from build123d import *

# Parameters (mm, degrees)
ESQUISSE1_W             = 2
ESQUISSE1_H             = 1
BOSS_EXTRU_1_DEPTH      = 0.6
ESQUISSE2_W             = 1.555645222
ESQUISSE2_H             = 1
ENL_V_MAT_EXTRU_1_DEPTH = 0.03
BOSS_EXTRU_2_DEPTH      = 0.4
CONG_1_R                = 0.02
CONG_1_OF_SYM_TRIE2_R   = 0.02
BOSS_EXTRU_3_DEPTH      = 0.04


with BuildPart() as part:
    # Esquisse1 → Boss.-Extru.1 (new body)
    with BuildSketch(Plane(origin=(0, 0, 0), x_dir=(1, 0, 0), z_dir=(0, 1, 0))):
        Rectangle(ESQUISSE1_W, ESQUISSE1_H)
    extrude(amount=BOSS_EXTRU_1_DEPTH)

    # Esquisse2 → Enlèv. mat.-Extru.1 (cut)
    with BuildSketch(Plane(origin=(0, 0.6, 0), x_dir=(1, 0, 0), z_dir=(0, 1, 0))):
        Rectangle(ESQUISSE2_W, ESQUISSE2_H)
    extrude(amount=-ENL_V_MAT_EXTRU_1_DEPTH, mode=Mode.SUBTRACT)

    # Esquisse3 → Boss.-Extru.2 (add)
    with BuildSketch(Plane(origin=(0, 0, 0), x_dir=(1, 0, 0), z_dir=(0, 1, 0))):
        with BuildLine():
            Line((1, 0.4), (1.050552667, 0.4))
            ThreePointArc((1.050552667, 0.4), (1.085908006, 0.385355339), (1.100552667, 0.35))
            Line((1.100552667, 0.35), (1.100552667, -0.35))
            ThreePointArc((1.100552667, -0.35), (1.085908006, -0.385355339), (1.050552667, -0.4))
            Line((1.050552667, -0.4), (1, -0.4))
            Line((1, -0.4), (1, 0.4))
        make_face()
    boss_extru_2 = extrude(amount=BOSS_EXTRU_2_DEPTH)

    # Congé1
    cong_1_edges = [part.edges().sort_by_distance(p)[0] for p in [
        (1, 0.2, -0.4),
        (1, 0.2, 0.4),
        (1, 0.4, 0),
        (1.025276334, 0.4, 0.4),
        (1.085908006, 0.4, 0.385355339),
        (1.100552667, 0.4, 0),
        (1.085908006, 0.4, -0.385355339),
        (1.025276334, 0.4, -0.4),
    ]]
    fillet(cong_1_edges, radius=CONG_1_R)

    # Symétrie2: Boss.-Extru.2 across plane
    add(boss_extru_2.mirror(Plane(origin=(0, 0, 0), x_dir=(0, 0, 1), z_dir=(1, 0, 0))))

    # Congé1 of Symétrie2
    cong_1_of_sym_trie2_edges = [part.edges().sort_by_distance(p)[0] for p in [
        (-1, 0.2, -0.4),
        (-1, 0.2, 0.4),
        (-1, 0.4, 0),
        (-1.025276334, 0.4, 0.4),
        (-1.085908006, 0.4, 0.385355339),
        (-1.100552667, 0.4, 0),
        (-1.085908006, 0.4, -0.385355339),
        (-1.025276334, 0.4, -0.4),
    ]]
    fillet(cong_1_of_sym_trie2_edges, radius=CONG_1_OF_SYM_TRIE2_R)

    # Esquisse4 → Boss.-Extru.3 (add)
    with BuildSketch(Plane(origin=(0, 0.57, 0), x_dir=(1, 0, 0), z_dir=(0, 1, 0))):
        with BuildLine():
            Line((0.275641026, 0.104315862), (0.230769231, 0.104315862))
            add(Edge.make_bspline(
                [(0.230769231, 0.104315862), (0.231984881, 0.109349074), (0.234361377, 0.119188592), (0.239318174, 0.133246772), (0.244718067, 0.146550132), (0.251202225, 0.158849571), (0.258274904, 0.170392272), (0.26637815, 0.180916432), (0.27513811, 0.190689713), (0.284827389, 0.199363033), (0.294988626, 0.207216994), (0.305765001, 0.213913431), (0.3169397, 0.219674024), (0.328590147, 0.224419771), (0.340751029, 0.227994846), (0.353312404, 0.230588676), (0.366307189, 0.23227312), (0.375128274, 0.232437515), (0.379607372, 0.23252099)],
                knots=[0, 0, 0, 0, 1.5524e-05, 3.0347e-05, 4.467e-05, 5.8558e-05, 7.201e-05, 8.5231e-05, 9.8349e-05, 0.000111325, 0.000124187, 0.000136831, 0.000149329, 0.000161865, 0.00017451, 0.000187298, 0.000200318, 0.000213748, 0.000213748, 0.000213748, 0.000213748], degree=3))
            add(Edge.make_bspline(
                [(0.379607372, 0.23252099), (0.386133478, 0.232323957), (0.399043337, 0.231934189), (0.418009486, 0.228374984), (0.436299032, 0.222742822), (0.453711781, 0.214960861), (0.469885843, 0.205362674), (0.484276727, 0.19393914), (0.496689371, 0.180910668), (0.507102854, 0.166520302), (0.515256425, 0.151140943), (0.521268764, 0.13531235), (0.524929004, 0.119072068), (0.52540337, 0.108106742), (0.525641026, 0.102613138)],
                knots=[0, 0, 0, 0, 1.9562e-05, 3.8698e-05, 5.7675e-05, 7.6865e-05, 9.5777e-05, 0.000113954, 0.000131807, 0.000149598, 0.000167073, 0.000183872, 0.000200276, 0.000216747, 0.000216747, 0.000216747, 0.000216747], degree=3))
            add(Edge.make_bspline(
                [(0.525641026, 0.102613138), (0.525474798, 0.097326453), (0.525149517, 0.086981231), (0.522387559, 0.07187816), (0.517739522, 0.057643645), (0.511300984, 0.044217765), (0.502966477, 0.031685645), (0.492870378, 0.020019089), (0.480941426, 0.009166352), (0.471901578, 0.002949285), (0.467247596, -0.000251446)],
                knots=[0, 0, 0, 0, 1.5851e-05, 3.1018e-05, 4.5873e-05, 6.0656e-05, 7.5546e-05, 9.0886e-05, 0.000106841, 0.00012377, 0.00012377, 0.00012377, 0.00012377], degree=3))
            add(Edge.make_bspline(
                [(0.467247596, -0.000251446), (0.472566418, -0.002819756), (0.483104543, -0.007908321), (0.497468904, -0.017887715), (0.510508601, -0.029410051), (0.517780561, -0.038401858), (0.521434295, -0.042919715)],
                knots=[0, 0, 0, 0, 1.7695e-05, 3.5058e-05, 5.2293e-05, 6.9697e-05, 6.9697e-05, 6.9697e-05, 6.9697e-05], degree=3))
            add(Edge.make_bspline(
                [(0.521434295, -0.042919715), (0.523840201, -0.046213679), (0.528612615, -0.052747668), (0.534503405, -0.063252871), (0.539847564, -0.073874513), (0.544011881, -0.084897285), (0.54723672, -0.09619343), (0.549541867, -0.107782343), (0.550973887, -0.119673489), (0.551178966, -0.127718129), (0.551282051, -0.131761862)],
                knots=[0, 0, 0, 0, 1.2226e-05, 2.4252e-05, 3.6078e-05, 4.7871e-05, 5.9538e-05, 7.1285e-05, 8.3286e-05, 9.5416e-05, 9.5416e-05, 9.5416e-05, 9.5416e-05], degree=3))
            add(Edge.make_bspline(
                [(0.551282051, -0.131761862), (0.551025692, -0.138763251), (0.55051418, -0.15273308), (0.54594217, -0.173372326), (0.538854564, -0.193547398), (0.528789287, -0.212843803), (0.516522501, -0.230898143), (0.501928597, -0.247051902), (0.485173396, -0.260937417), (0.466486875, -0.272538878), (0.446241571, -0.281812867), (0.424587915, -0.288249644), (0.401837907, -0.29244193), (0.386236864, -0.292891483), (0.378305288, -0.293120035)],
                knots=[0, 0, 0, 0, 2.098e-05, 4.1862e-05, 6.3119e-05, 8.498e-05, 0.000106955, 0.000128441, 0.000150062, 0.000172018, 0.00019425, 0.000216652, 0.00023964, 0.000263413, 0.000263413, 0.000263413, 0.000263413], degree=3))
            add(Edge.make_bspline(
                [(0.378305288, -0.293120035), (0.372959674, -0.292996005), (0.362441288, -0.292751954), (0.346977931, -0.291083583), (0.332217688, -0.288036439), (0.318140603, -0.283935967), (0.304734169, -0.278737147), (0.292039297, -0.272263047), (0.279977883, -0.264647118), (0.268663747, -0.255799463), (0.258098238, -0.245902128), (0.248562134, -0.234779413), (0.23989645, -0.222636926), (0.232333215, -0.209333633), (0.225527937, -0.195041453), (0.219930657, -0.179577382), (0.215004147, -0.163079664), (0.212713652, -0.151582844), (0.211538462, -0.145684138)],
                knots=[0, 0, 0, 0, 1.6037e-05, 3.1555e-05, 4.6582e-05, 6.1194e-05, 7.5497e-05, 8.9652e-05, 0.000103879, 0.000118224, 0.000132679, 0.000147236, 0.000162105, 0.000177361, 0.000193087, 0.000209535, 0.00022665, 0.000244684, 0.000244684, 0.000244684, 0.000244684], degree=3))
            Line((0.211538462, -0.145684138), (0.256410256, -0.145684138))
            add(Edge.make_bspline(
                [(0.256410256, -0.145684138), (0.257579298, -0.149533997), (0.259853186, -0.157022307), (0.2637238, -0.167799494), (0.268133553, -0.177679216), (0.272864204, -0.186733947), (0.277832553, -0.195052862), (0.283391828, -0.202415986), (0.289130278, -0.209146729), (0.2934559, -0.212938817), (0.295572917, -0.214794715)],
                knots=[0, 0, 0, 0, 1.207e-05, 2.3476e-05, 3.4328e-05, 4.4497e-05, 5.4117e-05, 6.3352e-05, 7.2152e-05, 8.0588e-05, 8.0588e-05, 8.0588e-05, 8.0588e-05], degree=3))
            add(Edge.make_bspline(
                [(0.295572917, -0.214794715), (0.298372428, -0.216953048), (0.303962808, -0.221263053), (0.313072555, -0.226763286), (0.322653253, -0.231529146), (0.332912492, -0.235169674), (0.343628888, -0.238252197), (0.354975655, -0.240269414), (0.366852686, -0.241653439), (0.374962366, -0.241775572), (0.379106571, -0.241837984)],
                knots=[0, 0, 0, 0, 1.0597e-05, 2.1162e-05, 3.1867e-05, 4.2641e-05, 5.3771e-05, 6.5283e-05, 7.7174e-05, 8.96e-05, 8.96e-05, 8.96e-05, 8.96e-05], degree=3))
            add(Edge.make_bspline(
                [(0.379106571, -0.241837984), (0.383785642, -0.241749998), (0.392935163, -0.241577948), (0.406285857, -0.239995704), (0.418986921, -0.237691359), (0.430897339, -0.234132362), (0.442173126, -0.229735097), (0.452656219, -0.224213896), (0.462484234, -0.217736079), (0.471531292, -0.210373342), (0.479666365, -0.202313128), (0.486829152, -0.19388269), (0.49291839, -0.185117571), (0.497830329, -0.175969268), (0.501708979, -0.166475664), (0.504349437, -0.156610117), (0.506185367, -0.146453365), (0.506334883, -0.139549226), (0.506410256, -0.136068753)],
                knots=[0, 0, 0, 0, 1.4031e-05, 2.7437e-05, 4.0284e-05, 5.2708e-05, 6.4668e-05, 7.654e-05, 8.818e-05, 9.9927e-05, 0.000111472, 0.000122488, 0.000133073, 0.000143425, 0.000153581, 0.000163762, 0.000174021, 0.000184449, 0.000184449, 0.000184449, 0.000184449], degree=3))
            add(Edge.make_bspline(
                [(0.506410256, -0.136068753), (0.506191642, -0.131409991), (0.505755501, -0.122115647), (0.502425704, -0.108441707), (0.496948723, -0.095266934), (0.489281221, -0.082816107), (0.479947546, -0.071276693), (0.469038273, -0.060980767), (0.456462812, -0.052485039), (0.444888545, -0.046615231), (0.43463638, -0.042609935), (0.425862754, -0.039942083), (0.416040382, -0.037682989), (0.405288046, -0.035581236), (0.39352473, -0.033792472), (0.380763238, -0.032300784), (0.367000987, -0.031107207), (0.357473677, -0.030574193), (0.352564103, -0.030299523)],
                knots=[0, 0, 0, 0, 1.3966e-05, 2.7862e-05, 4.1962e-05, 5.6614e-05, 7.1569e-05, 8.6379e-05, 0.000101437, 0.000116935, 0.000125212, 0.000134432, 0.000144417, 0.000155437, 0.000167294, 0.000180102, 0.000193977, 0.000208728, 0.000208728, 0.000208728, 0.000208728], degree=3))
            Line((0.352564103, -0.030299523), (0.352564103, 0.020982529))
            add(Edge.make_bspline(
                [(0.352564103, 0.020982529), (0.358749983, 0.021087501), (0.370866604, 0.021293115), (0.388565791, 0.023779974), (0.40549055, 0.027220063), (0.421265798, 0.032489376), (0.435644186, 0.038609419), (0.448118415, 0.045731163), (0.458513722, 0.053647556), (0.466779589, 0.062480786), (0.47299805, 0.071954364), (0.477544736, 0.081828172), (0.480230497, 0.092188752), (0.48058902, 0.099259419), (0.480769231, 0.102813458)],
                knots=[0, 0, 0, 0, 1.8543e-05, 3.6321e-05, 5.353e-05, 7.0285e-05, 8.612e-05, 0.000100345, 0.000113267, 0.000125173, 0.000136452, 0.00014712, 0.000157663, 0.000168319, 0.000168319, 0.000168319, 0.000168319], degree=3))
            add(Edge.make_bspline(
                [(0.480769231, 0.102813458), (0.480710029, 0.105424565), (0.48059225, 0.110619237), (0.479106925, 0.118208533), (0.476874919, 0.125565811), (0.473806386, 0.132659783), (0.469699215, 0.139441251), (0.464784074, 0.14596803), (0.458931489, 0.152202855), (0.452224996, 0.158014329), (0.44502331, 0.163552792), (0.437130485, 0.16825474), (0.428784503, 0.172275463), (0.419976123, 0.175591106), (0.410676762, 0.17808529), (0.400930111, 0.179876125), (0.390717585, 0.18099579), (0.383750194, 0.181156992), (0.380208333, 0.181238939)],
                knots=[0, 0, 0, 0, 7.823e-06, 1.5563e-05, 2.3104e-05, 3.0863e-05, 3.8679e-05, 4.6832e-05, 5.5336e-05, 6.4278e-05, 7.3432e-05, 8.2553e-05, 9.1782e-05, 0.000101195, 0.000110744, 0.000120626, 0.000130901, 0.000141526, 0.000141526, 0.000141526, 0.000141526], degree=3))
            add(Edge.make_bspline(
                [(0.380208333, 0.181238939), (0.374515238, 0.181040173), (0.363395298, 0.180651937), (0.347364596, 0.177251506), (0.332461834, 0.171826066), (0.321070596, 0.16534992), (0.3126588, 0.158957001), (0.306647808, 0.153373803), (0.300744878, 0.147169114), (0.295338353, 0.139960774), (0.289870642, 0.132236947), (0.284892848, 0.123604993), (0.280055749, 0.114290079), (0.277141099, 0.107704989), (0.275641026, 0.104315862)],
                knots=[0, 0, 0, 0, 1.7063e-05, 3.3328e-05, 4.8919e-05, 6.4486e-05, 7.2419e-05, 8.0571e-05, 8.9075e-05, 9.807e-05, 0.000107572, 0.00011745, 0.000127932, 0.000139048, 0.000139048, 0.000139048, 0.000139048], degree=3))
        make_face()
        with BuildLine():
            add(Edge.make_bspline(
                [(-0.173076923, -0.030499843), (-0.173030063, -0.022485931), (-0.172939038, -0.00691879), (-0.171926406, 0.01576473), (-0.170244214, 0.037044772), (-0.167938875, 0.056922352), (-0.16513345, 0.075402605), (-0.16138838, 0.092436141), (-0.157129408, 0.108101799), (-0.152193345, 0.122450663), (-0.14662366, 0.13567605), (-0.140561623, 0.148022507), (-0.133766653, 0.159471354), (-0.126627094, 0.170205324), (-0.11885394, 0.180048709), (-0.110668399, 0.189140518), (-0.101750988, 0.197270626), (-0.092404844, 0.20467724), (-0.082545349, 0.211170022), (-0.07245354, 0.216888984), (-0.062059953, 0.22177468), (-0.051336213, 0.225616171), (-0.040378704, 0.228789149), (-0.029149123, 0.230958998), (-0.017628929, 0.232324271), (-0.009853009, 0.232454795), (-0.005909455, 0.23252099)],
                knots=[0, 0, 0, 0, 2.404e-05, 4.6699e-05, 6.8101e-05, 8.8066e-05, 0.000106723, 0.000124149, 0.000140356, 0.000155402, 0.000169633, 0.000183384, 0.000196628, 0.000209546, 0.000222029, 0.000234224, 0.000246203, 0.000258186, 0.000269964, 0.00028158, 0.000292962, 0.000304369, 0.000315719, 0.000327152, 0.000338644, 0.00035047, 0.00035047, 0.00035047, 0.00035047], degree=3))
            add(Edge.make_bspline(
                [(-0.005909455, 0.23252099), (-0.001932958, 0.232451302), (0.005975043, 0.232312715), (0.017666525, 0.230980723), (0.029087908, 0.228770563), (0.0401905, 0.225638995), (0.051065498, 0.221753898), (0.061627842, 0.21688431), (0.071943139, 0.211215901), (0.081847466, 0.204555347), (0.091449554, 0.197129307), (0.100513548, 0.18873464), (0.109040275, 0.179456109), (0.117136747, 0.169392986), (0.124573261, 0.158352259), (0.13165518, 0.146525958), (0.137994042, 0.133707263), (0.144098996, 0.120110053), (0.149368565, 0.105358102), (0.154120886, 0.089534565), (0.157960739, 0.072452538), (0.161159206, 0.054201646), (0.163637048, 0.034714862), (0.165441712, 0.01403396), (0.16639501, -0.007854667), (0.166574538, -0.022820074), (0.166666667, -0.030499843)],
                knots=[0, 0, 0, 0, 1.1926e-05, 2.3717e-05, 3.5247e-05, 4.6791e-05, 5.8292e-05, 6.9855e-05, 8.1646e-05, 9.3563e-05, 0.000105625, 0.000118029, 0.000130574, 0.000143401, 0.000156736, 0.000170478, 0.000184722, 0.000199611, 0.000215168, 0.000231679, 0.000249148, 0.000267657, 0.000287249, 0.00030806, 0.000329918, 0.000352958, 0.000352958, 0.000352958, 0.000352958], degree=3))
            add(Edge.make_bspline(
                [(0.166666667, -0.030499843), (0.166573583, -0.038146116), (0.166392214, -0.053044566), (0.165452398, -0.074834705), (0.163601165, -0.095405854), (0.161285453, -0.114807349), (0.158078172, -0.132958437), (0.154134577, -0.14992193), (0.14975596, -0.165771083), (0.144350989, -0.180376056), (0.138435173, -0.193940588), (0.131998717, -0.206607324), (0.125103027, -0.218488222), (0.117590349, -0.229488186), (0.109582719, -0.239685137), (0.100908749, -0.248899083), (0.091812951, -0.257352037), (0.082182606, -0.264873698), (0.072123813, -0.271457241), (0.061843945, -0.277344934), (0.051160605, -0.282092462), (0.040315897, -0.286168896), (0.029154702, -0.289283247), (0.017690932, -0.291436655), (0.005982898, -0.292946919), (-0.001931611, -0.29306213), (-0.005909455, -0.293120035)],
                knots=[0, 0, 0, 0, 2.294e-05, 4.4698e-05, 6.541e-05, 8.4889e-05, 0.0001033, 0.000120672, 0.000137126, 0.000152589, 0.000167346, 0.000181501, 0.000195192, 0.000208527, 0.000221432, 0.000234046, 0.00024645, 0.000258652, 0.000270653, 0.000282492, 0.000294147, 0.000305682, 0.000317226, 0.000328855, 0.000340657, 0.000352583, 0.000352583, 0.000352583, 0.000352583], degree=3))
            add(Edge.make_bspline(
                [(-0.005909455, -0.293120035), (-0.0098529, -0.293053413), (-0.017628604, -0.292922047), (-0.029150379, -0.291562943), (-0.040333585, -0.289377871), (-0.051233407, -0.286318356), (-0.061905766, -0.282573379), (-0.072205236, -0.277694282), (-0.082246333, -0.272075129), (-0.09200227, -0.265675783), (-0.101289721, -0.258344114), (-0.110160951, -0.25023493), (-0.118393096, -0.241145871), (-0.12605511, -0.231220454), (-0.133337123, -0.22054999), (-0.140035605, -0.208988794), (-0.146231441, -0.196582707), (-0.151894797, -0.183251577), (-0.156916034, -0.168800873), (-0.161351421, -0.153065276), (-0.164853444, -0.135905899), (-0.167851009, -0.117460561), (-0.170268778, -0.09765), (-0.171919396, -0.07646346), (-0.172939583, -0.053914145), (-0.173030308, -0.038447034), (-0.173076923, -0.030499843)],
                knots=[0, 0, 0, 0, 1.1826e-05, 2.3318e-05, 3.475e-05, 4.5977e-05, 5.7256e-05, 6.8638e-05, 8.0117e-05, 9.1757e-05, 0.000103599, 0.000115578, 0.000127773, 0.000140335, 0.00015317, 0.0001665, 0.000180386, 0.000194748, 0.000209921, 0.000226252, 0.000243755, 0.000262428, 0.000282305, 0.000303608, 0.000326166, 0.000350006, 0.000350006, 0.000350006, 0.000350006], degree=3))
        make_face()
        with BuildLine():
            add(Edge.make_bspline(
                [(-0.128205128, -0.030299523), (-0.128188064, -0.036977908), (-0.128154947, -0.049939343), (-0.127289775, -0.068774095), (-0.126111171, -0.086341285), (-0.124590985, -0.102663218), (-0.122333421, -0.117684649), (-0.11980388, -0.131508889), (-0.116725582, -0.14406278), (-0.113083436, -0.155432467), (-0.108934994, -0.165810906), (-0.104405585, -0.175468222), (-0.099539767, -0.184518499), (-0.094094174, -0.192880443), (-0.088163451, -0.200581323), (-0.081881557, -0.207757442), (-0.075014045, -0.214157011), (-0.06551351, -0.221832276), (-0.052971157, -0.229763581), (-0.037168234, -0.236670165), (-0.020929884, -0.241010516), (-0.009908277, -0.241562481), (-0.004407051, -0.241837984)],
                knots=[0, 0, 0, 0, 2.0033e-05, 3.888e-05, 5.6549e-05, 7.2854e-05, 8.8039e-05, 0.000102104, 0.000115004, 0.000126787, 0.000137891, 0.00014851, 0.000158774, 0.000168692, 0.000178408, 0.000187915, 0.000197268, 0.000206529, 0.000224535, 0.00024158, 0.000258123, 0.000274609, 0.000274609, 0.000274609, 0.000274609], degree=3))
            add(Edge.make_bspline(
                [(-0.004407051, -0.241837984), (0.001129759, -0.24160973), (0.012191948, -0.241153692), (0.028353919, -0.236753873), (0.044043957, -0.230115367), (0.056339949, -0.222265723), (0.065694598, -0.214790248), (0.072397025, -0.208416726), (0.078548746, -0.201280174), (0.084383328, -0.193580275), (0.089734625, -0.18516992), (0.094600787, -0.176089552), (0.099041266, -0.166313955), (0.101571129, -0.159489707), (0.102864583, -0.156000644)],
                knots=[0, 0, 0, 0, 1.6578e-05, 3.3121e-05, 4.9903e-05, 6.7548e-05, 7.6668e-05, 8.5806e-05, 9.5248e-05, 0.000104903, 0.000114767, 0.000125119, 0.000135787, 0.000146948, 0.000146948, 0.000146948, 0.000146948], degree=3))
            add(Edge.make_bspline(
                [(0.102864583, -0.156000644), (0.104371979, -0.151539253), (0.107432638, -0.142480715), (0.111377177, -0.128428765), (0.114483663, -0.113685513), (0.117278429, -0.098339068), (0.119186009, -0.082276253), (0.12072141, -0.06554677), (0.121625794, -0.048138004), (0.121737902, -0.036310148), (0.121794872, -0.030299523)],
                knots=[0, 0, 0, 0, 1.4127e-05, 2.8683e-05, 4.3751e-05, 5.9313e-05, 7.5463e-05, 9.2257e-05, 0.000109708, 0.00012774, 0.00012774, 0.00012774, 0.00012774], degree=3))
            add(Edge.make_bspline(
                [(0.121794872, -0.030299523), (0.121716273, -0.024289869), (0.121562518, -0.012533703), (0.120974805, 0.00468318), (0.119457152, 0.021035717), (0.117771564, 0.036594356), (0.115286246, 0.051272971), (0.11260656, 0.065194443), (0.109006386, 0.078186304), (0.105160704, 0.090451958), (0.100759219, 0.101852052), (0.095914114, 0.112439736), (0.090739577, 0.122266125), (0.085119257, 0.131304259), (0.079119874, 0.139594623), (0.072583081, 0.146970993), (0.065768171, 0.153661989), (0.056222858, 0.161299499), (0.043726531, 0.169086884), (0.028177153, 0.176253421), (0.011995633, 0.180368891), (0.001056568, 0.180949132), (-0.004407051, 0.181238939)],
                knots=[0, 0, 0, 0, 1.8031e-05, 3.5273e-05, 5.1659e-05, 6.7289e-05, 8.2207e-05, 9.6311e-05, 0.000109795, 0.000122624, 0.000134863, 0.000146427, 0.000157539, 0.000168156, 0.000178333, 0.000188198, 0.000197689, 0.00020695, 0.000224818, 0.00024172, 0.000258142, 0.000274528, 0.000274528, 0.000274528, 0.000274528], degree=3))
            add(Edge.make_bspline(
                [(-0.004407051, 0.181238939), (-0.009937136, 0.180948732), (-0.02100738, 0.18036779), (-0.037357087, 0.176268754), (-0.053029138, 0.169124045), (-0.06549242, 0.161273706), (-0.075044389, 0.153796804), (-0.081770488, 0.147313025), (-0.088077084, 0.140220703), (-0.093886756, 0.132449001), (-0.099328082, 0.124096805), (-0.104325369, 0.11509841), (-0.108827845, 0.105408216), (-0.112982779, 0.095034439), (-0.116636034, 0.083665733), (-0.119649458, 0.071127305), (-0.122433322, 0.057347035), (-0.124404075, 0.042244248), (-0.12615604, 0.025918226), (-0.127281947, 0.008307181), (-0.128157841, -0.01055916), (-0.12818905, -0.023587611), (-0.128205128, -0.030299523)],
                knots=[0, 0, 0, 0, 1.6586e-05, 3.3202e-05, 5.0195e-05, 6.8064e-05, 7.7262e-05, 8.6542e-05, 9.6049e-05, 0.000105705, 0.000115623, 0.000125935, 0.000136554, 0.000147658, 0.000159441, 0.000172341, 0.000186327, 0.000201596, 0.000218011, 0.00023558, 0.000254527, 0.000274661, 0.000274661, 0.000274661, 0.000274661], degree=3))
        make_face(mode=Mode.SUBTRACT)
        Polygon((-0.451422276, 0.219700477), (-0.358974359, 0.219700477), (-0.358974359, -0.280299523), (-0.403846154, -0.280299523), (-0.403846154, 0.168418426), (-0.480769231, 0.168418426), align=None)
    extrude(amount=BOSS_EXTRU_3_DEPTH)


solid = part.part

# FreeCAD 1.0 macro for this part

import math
import FreeCAD as App
import Part
import Sketcher

V = App.Vector
Q = App.Units.Quantity


def edges_at(feature, points):
    """Names of the edges that pass closest to the given points."""
    edges = feature.Shape.Edges
    near = lambda p: min(range(len(edges)), key=lambda i: edges[i].distToShape(Part.Vertex(*p))[0])
    return sorted({f"Edge{near(p) + 1}" for p in points})


def add_polygon(sketch, points):
    """Adds a closed chain of lines whose ends are joined by coincident constraints."""
    first, n = sketch.GeometryCount, len(points)
    for a, b in zip(points, points[1:] + points[:1]):
        sketch.addGeometry(Part.LineSegment(App.Vector(*a, 0), App.Vector(*b, 0)), False)
    for i in range(n):
        sketch.addConstraint(Sketcher.Constraint("Coincident", first + i, 2, first + (i + 1) % n, 1))

doc = App.newDocument("Part")
body = doc.addObject("PartDesign::Body", "Body")

# Sketch on XZ plane
sketch1 = doc.addObject("Sketcher::SketchObject", "Sketch")
body.addObject(sketch1)
sketch1.AttachmentSupport = (doc.XZ_Plane, [""])
sketch1.MapMode = "FlatFace"
add_polygon(sketch1, [(-1, -0.5), (-1, 0.5), (1, 0.5), (1, -0.5)])  # lines 0-3
sketch1.addConstraint([
    Sketcher.Constraint("Vertical", 0),
    Sketcher.Constraint("Horizontal", 1),
    Sketcher.Constraint("Vertical", 2),
    Sketcher.Constraint("Horizontal", 3),
    Sketcher.Constraint("Symmetric", 0, 2, 2, 2, -1, 1),
    Sketcher.Constraint("DistanceX", 1, 1, 1, 2, Q("2 mm")),
    Sketcher.Constraint("DistanceY", 0, 1, 0, 2, Q("1 mm")),
])
pad1 = doc.addObject("PartDesign::Pad", "Pad")
body.addObject(pad1)
pad1.Profile = sketch1
pad1.Length = 0.6
pad1.Reversed = True

# Sketch on XZ plane
sketch2 = doc.addObject("Sketcher::SketchObject", "Sketch001")
body.addObject(sketch2)
sketch2.AttachmentSupport = (doc.XZ_Plane, [""])
sketch2.MapMode = "FlatFace"
sketch2.AttachmentOffset = App.Placement(V(0, 0, -0.6), App.Rotation())
add_polygon(sketch2, [(-0.777823, -0.5), (-0.777823, 0.5), (0.777823, 0.5), (0.777823, -0.5)])  # lines 0-3
sketch2.addConstraint([
    Sketcher.Constraint("Vertical", 0),
    Sketcher.Constraint("Horizontal", 1),
    Sketcher.Constraint("Vertical", 2),
    Sketcher.Constraint("Horizontal", 3),
    Sketcher.Constraint("Symmetric", 0, 2, 2, 2, -1, 1),
    Sketcher.Constraint("DistanceY", 0, 1, 0, 2, Q("1 mm")),
    Sketcher.Constraint("DistanceX", 1, 1, 1, 2, Q("1.555645 mm")),
])
pocket1 = doc.addObject("PartDesign::Pocket", "Pocket")
body.addObject(pocket1)
pocket1.Profile = sketch2
pocket1.Length = 0.03
pocket1.Reversed = True

# Sketch on XZ plane
sketch3 = doc.addObject("Sketcher::SketchObject", "Sketch002")
body.addObject(sketch3)
sketch3.AttachmentSupport = (doc.XZ_Plane, [""])
sketch3.MapMode = "FlatFace"
sketch3.addGeometry([
    Part.LineSegment(V(1.050553, -0.4, 0), V(1, -0.4, 0)),  # 0
    Part.LineSegment(V(1, -0.4, 0), V(1, 0.4, 0)),  # 1
    Part.LineSegment(V(1, 0.4, 0), V(1.050553, 0.4, 0)),  # 2
    Part.ArcOfCircle(Part.Circle(V(1.050553, 0.35, 0), V(0, 0, 1), 0.05), math.radians(0), math.radians(90)),  # 3
    Part.LineSegment(V(1.100553, 0.35, 0), V(1.100553, -0.35, 0)),  # 4
    Part.ArcOfCircle(Part.Circle(V(1.050553, -0.35, 0), V(0, 0, 1), 0.05), math.radians(-90), math.radians(0)),  # 5
], False)
sketch3.addConstraint([
    Sketcher.Constraint("Coincident", 0, 2, 1, 1),
    Sketcher.Constraint("Coincident", 1, 2, 2, 1),
    Sketcher.Constraint("Tangent", 2, 2, 3, 2),
    Sketcher.Constraint("Tangent", 3, 1, 4, 1),
    Sketcher.Constraint("Tangent", 4, 2, 5, 2),
    Sketcher.Constraint("Tangent", 5, 1, 0, 1),
    Sketcher.Constraint("Horizontal", 0),
    Sketcher.Constraint("Vertical", 1),
    Sketcher.Constraint("Horizontal", 2),
    Sketcher.Constraint("Vertical", 4),
    Sketcher.Constraint("Equal", 3, 5),
    Sketcher.Constraint("Radius", 3, Q("0.05 mm")),
    Sketcher.Constraint("DistanceY", 1, 1, 1, 2, Q("0.8 mm")),
    Sketcher.Constraint("DistanceX", -1, 1, 0, 2, Q("1 mm")),
    Sketcher.Constraint("DistanceY", 0, 2, -1, 1, Q("0.4 mm")),
    Sketcher.Constraint("DistanceX", 0, 2, 0, 1, Q("0.050553 mm")),
])
pad2 = doc.addObject("PartDesign::Pad", "Pad001")
body.addObject(pad2)
pad2.Profile = sketch3
pad2.Length = 0.4
pad2.Reversed = True
doc.recompute()

fillet = doc.addObject("PartDesign::Fillet", "Fillet")
body.addObject(fillet)
fillet.Base = (pad2, edges_at(pad2, [
    (1, 0.2, -0.4),
    (1, 0.2, 0.4),
    (1, 0.4, 0),
    (1.025, 0.4, 0.4),
    (1.086, 0.4, 0.385),
    (1.101, 0.4, 0),
    (1.086, 0.4, -0.385),
    (1.025, 0.4, -0.4),
]))
fillet.Radius = 0.02
doc.recompute()

mirrored = doc.addObject("PartDesign::Mirrored", "Mirrored")
body.addObject(mirrored)
mirrored.Originals = [pad2]
mirrored.MirrorPlane = (doc.YZ_Plane, [""])
body.Tip = mirrored
doc.recompute()

fillet2 = doc.addObject("PartDesign::Fillet", "Fillet001")
body.addObject(fillet2)
fillet2.Base = (mirrored, edges_at(mirrored, [
    (-1, 0.2, -0.4),
    (-1, 0.2, 0.4),
    (-1, 0.4, 0),
    (-1.025, 0.4, 0.4),
    (-1.086, 0.4, 0.385),
    (-1.101, 0.4, 0),
    (-1.086, 0.4, -0.385),
    (-1.025, 0.4, -0.4),
]))
fillet2.Radius = 0.02

# Sketch on XZ plane
sketch4 = doc.addObject("Sketcher::SketchObject", "Sketch003")
body.addObject(sketch4)
sketch4.AttachmentSupport = (doc.XZ_Plane, [""])
sketch4.MapMode = "FlatFace"
sketch4.AttachmentOffset = App.Placement(V(0, 0, -0.57), App.Rotation())
sketch4.addGeometry(Part.LineSegment(V(0.230769, -0.104316, 0), V(0.275641, -0.104316, 0)), False)  # 0
sketch4.addGeometry(Part.BSplineCurve([V(0.380208, -0.181239, 0), V(0.374515, -0.18104, 0), V(0.363395, -0.180652, 0), V(0.347365, -0.177252, 0), V(0.332462, -0.171826, 0), V(0.321071, -0.16535, 0), V(0.312659, -0.158957, 0), V(0.306648, -0.153374, 0), V(0.300745, -0.147169, 0), V(0.295338, -0.139961, 0), V(0.289871, -0.132237, 0), V(0.284893, -0.123605, 0), V(0.280056, -0.11429, 0), V(0.277141, -0.107705, 0), V(0.275641, -0.104316, 0)], [4, 1, 1, 1, 1, 1, 1, 1, 1, 1, 1, 1, 4], [0, 0.000017063, 0.000033328, 0.000048919, 0.000064486, 0.000072419, 0.000080571, 0.000089075, 0.00009807, 0.000107572, 0.00011745, 0.000127932, 0.000139048], False, 3, [1, 1, 1, 1, 1, 1, 1, 1, 1, 1, 1, 1, 1, 1, 1], False), False)  # 1
sketch4.addGeometry(Part.BSplineCurve([V(0.480769, -0.102813, 0), V(0.48071, -0.105425, 0), V(0.480592, -0.110619, 0), V(0.479107, -0.118209, 0), V(0.476875, -0.125566, 0), V(0.473806, -0.13266, 0), V(0.469699, -0.139441, 0), V(0.464784, -0.145968, 0), V(0.458931, -0.152203, 0), V(0.452225, -0.158014, 0), V(0.445023, -0.163553, 0), V(0.43713, -0.168255, 0), V(0.428785, -0.172275, 0), V(0.419976, -0.175591, 0), V(0.410677, -0.178085, 0), V(0.40093, -0.179876, 0), V(0.390718, -0.180996, 0), V(0.38375, -0.181157, 0), V(0.380208, -0.181239, 0)], [4, 1, 1, 1, 1, 1, 1, 1, 1, 1, 1, 1, 1, 1, 1, 1, 4], [0, 0.000007823, 0.000015563, 0.000023104, 0.000030863, 0.000038679, 0.000046832, 0.000055336, 0.000064278, 0.000073432, 0.000082553, 0.000091782, 0.000101195, 0.000110744, 0.000120626, 0.000130901, 0.000141526], False, 3, [1, 1, 1, 1, 1, 1, 1, 1, 1, 1, 1, 1, 1, 1, 1, 1, 1, 1, 1], False), False)  # 2
sketch4.addGeometry(Part.BSplineCurve([V(0.352564, -0.020983, 0), V(0.35875, -0.021088, 0), V(0.370867, -0.021293, 0), V(0.388566, -0.02378, 0), V(0.405491, -0.02722, 0), V(0.421266, -0.032489, 0), V(0.435644, -0.038609, 0), V(0.448118, -0.045731, 0), V(0.458514, -0.053648, 0), V(0.46678, -0.062481, 0), V(0.472998, -0.071954, 0), V(0.477545, -0.081828, 0), V(0.48023, -0.092189, 0), V(0.480589, -0.099259, 0), V(0.480769, -0.102813, 0)], [4, 1, 1, 1, 1, 1, 1, 1, 1, 1, 1, 1, 4], [0, 0.000018543, 0.000036321, 0.00005353, 0.000070285, 0.00008612, 0.000100345, 0.000113267, 0.000125173, 0.000136452, 0.00014712, 0.000157663, 0.000168319], False, 3, [1, 1, 1, 1, 1, 1, 1, 1, 1, 1, 1, 1, 1, 1, 1], False), False)  # 3
sketch4.addGeometry(Part.LineSegment(V(0.352564, -0.020983, 0), V(0.352564, 0.0303, 0)), False)  # 4
sketch4.addGeometry(Part.BSplineCurve([V(0.50641, 0.136069, 0), V(0.506192, 0.13141, 0), V(0.505756, 0.122116, 0), V(0.502426, 0.108442, 0), V(0.496949, 0.095267, 0), V(0.489281, 0.082816, 0), V(0.479948, 0.071277, 0), V(0.469038, 0.060981, 0), V(0.456463, 0.052485, 0), V(0.444889, 0.046615, 0), V(0.434636, 0.04261, 0), V(0.425863, 0.039942, 0), V(0.41604, 0.037683, 0), V(0.405288, 0.035581, 0), V(0.393525, 0.033792, 0), V(0.380763, 0.032301, 0), V(0.367001, 0.031107, 0), V(0.357474, 0.030574, 0), V(0.352564, 0.0303, 0)], [4, 1, 1, 1, 1, 1, 1, 1, 1, 1, 1, 1, 1, 1, 1, 1, 4], [0, 0.000013966, 0.000027862, 0.000041962, 0.000056614, 0.000071569, 0.000086379, 0.000101437, 0.000116935, 0.000125212, 0.000134432, 0.000144417, 0.000155437, 0.000167294, 0.000180102, 0.000193977, 0.000208728], False, 3, [1, 1, 1, 1, 1, 1, 1, 1, 1, 1, 1, 1, 1, 1, 1, 1, 1, 1, 1], False), False)  # 5
sketch4.addGeometry(Part.BSplineCurve([V(0.379107, 0.241838, 0), V(0.383786, 0.24175, 0), V(0.392935, 0.241578, 0), V(0.406286, 0.239996, 0), V(0.418987, 0.237691, 0), V(0.430897, 0.234132, 0), V(0.442173, 0.229735, 0), V(0.452656, 0.224214, 0), V(0.462484, 0.217736, 0), V(0.471531, 0.210373, 0), V(0.479666, 0.202313, 0), V(0.486829, 0.193883, 0), V(0.492918, 0.185118, 0), V(0.49783, 0.175969, 0), V(0.501709, 0.166476, 0), V(0.504349, 0.15661, 0), V(0.506185, 0.146453, 0), V(0.506335, 0.139549, 0), V(0.50641, 0.136069, 0)], [4, 1, 1, 1, 1, 1, 1, 1, 1, 1, 1, 1, 1, 1, 1, 1, 4], [0, 0.000014031, 0.000027437, 0.000040284, 0.000052708, 0.000064668, 0.00007654, 0.00008818, 0.000099927, 0.000111472, 0.000122488, 0.000133073, 0.000143425, 0.000153581, 0.000163762, 0.000174021, 0.000184449], False, 3, [1, 1, 1, 1, 1, 1, 1, 1, 1, 1, 1, 1, 1, 1, 1, 1, 1, 1, 1], False), False)  # 6
sketch4.addGeometry(Part.BSplineCurve([V(0.295573, 0.214795, 0), V(0.298372, 0.216953, 0), V(0.303963, 0.221263, 0), V(0.313073, 0.226763, 0), V(0.322653, 0.231529, 0), V(0.332912, 0.23517, 0), V(0.343629, 0.238252, 0), V(0.354976, 0.240269, 0), V(0.366853, 0.241653, 0), V(0.374962, 0.241776, 0), V(0.379107, 0.241838, 0)], [4, 1, 1, 1, 1, 1, 1, 1, 4], [0, 0.000010597, 0.000021162, 0.000031867, 0.000042641, 0.000053771, 0.000065283, 0.000077174, 0.0000896], False, 3, [1, 1, 1, 1, 1, 1, 1, 1, 1, 1, 1], False), False)  # 7
sketch4.addGeometry(Part.BSplineCurve([V(0.25641, 0.145684, 0), V(0.257579, 0.149534, 0), V(0.259853, 0.157022, 0), V(0.263724, 0.167799, 0), V(0.268134, 0.177679, 0), V(0.272864, 0.186734, 0), V(0.277833, 0.195053, 0), V(0.283392, 0.202416, 0), V(0.28913, 0.209147, 0), V(0.293456, 0.212939, 0), V(0.295573, 0.214795, 0)], [4, 1, 1, 1, 1, 1, 1, 1, 4], [0, 0.00001207, 0.000023476, 0.000034328, 0.000044497, 0.000054117, 0.000063352, 0.000072152, 0.000080588], False, 3, [1, 1, 1, 1, 1, 1, 1, 1, 1, 1, 1], False), False)  # 8
sketch4.addGeometry(Part.LineSegment(V(0.25641, 0.145684, 0), V(0.211538, 0.145684, 0)), False)  # 9
sketch4.addGeometry(Part.BSplineCurve([V(0.378305, 0.29312, 0), V(0.37296, 0.292996, 0), V(0.362441, 0.292752, 0), V(0.346978, 0.291084, 0), V(0.332218, 0.288036, 0), V(0.318141, 0.283936, 0), V(0.304734, 0.278737, 0), V(0.292039, 0.272263, 0), V(0.279978, 0.264647, 0), V(0.268664, 0.255799, 0), V(0.258098, 0.245902, 0), V(0.248562, 0.234779, 0), V(0.239896, 0.222637, 0), V(0.232333, 0.209334, 0), V(0.225528, 0.195041, 0), V(0.219931, 0.179577, 0), V(0.215004, 0.16308, 0), V(0.212714, 0.151583, 0), V(0.211538, 0.145684, 0)], [4, 1, 1, 1, 1, 1, 1, 1, 1, 1, 1, 1, 1, 1, 1, 1, 4], [0, 0.000016037, 0.000031555, 0.000046582, 0.000061194, 0.000075497, 0.000089652, 0.000103879, 0.000118224, 0.000132679, 0.000147236, 0.000162105, 0.000177361, 0.000193087, 0.000209535, 0.00022665, 0.000244684], False, 3, [1, 1, 1, 1, 1, 1, 1, 1, 1, 1, 1, 1, 1, 1, 1, 1, 1, 1, 1], False), False)  # 10
sketch4.addGeometry(Part.BSplineCurve([V(0.551282, 0.131762, 0), V(0.551026, 0.138763, 0), V(0.550514, 0.152733, 0), V(0.545942, 0.173372, 0), V(0.538855, 0.193547, 0), V(0.528789, 0.212844, 0), V(0.516523, 0.230898, 0), V(0.501929, 0.247052, 0), V(0.485173, 0.260937, 0), V(0.466487, 0.272539, 0), V(0.446242, 0.281813, 0), V(0.424588, 0.28825, 0), V(0.401838, 0.292442, 0), V(0.386237, 0.292891, 0), V(0.378305, 0.29312, 0)], [4, 1, 1, 1, 1, 1, 1, 1, 1, 1, 1, 1, 4], [0, 0.00002098, 0.000041862, 0.000063119, 0.00008498, 0.000106955, 0.000128441, 0.000150062, 0.000172018, 0.00019425, 0.000216652, 0.00023964, 0.000263413], False, 3, [1, 1, 1, 1, 1, 1, 1, 1, 1, 1, 1, 1, 1, 1, 1], False), False)  # 11
sketch4.addGeometry(Part.BSplineCurve([V(0.521434, 0.04292, 0), V(0.52384, 0.046214, 0), V(0.528613, 0.052748, 0), V(0.534503, 0.063253, 0), V(0.539848, 0.073875, 0), V(0.544012, 0.084897, 0), V(0.547237, 0.096193, 0), V(0.549542, 0.107782, 0), V(0.550974, 0.119673, 0), V(0.551179, 0.127718, 0), V(0.551282, 0.131762, 0)], [4, 1, 1, 1, 1, 1, 1, 1, 4], [0, 0.000012226, 0.000024252, 0.000036078, 0.000047871, 0.000059538, 0.000071285, 0.000083286, 0.000095416], False, 3, [1, 1, 1, 1, 1, 1, 1, 1, 1, 1, 1], False), False)  # 12
sketch4.addGeometry(Part.BSplineCurve([V(0.467248, 0.000251, 0), V(0.472566, 0.00282, 0), V(0.483105, 0.007908, 0), V(0.497469, 0.017888, 0), V(0.510509, 0.02941, 0), V(0.517781, 0.038402, 0), V(0.521434, 0.04292, 0)], [4, 1, 1, 1, 4], [0, 0.000017695, 0.000035058, 0.000052293, 0.000069697], False, 3, [1, 1, 1, 1, 1, 1, 1], False), False)  # 13
sketch4.addGeometry(Part.BSplineCurve([V(0.525641, -0.102613, 0), V(0.525475, -0.097326, 0), V(0.52515, -0.086981, 0), V(0.522388, -0.071878, 0), V(0.51774, -0.057644, 0), V(0.511301, -0.044218, 0), V(0.502966, -0.031686, 0), V(0.49287, -0.020019, 0), V(0.480941, -0.009166, 0), V(0.471902, -0.002949, 0), V(0.467248, 0.000251, 0)], [4, 1, 1, 1, 1, 1, 1, 1, 4], [0, 0.000015851, 0.000031018, 0.000045873, 0.000060656, 0.000075546, 0.000090886, 0.000106841, 0.00012377], False, 3, [1, 1, 1, 1, 1, 1, 1, 1, 1, 1, 1], False), False)  # 14
sketch4.addGeometry(Part.BSplineCurve([V(0.379607, -0.232521, 0), V(0.386133, -0.232324, 0), V(0.399043, -0.231934, 0), V(0.418009, -0.228375, 0), V(0.436299, -0.222743, 0), V(0.453712, -0.214961, 0), V(0.469886, -0.205363, 0), V(0.484277, -0.193939, 0), V(0.496689, -0.180911, 0), V(0.507103, -0.16652, 0), V(0.515256, -0.151141, 0), V(0.521269, -0.135312, 0), V(0.524929, -0.119072, 0), V(0.525403, -0.108107, 0), V(0.525641, -0.102613, 0)], [4, 1, 1, 1, 1, 1, 1, 1, 1, 1, 1, 1, 4], [0, 0.000019562, 0.000038698, 0.000057675, 0.000076865, 0.000095777, 0.000113954, 0.000131807, 0.000149598, 0.000167073, 0.000183872, 0.000200276, 0.000216747], False, 3, [1, 1, 1, 1, 1, 1, 1, 1, 1, 1, 1, 1, 1, 1, 1], False), False)  # 15
sketch4.addGeometry(Part.BSplineCurve([V(0.230769, -0.104316, 0), V(0.231985, -0.109349, 0), V(0.234361, -0.119189, 0), V(0.239318, -0.133247, 0), V(0.244718, -0.14655, 0), V(0.251202, -0.15885, 0), V(0.258275, -0.170392, 0), V(0.266378, -0.180916, 0), V(0.275138, -0.19069, 0), V(0.284827, -0.199363, 0), V(0.294989, -0.207217, 0), V(0.305765, -0.213913, 0), V(0.31694, -0.219674, 0), V(0.32859, -0.22442, 0), V(0.340751, -0.227995, 0), V(0.353312, -0.230589, 0), V(0.366307, -0.232273, 0), V(0.375128, -0.232438, 0), V(0.379607, -0.232521, 0)], [4, 1, 1, 1, 1, 1, 1, 1, 1, 1, 1, 1, 1, 1, 1, 1, 4], [0, 0.000015524, 0.000030347, 0.00004467, 0.000058558, 0.00007201, 0.000085231, 0.000098349, 0.000111325, 0.000124187, 0.000136831, 0.000149329, 0.000161865, 0.00017451, 0.000187298, 0.000200318, 0.000213748], False, 3, [1, 1, 1, 1, 1, 1, 1, 1, 1, 1, 1, 1, 1, 1, 1, 1, 1, 1, 1], False), False)  # 16
sketch4.addGeometry(Part.BSplineCurve([V(-0.173077, 0.0305, 0), V(-0.17303, 0.022486, 0), V(-0.172939, 0.006919, 0), V(-0.171926, -0.015765, 0), V(-0.170244, -0.037045, 0), V(-0.167939, -0.056922, 0), V(-0.165133, -0.075403, 0), V(-0.161388, -0.092436, 0), V(-0.157129, -0.108102, 0), V(-0.152193, -0.122451, 0), V(-0.146624, -0.135676, 0), V(-0.140562, -0.148023, 0), V(-0.133767, -0.159471, 0), V(-0.126627, -0.170205, 0), V(-0.118854, -0.180049, 0), V(-0.110668, -0.189141, 0), V(-0.101751, -0.197271, 0), V(-0.092405, -0.204677, 0), V(-0.082545, -0.21117, 0), V(-0.072454, -0.216889, 0), V(-0.06206, -0.221775, 0), V(-0.051336, -0.225616, 0), V(-0.040379, -0.228789, 0), V(-0.029149, -0.230959, 0), V(-0.017629, -0.232324, 0), V(-0.009853, -0.232455, 0), V(-0.005909, -0.232521, 0)], [4, 1, 1, 1, 1, 1, 1, 1, 1, 1, 1, 1, 1, 1, 1, 1, 1, 1, 1, 1, 1, 1, 1, 1, 4], [0, 0.00002404, 0.000046699, 0.000068101, 0.000088066, 0.000106723, 0.000124149, 0.000140356, 0.000155402, 0.000169633, 0.000183384, 0.000196628, 0.000209546, 0.000222029, 0.000234224, 0.000246203, 0.000258186, 0.000269964, 0.00028158, 0.000292962, 0.000304369, 0.000315719, 0.000327152, 0.000338644, 0.00035047], False, 3, [1, 1, 1, 1, 1, 1, 1, 1, 1, 1, 1, 1, 1, 1, 1, 1, 1, 1, 1, 1, 1, 1, 1, 1, 1, 1, 1], False), False)  # 17
sketch4.addGeometry(Part.BSplineCurve([V(-0.005909, 0.29312, 0), V(-0.009853, 0.293053, 0), V(-0.017629, 0.292922, 0), V(-0.02915, 0.291563, 0), V(-0.040334, 0.289378, 0), V(-0.051233, 0.286318, 0), V(-0.061906, 0.282573, 0), V(-0.072205, 0.277694, 0), V(-0.082246, 0.272075, 0), V(-0.092002, 0.265676, 0), V(-0.10129, 0.258344, 0), V(-0.110161, 0.250235, 0), V(-0.118393, 0.241146, 0), V(-0.126055, 0.23122, 0), V(-0.133337, 0.22055, 0), V(-0.140036, 0.208989, 0), V(-0.146231, 0.196583, 0), V(-0.151895, 0.183252, 0), V(-0.156916, 0.168801, 0), V(-0.161351, 0.153065, 0), V(-0.164853, 0.135906, 0), V(-0.167851, 0.117461, 0), V(-0.170269, 0.09765, 0), V(-0.171919, 0.076463, 0), V(-0.17294, 0.053914, 0), V(-0.17303, 0.038447, 0), V(-0.173077, 0.0305, 0)], [4, 1, 1, 1, 1, 1, 1, 1, 1, 1, 1, 1, 1, 1, 1, 1, 1, 1, 1, 1, 1, 1, 1, 1, 4], [0, 0.000011826, 0.000023318, 0.00003475, 0.000045977, 0.000057256, 0.000068638, 0.000080117, 0.000091757, 0.000103599, 0.000115578, 0.000127773, 0.000140335, 0.00015317, 0.0001665, 0.000180386, 0.000194748, 0.000209921, 0.000226252, 0.000243755, 0.000262428, 0.000282305, 0.000303608, 0.000326166, 0.000350006], False, 3, [1, 1, 1, 1, 1, 1, 1, 1, 1, 1, 1, 1, 1, 1, 1, 1, 1, 1, 1, 1, 1, 1, 1, 1, 1, 1, 1], False), False)  # 18
sketch4.addGeometry(Part.BSplineCurve([V(0.166667, 0.0305, 0), V(0.166574, 0.038146, 0), V(0.166392, 0.053045, 0), V(0.165452, 0.074835, 0), V(0.163601, 0.095406, 0), V(0.161285, 0.114807, 0), V(0.158078, 0.132958, 0), V(0.154135, 0.149922, 0), V(0.149756, 0.165771, 0), V(0.144351, 0.180376, 0), V(0.138435, 0.193941, 0), V(0.131999, 0.206607, 0), V(0.125103, 0.218488, 0), V(0.11759, 0.229488, 0), V(0.109583, 0.239685, 0), V(0.100909, 0.248899, 0), V(0.091813, 0.257352, 0), V(0.082183, 0.264874, 0), V(0.072124, 0.271457, 0), V(0.061844, 0.277345, 0), V(0.051161, 0.282092, 0), V(0.040316, 0.286169, 0), V(0.029155, 0.289283, 0), V(0.017691, 0.291437, 0), V(0.005983, 0.292947, 0), V(-0.001932, 0.293062, 0), V(-0.005909, 0.29312, 0)], [4, 1, 1, 1, 1, 1, 1, 1, 1, 1, 1, 1, 1, 1, 1, 1, 1, 1, 1, 1, 1, 1, 1, 1, 4], [0, 0.00002294, 0.000044698, 0.00006541, 0.000084889, 0.0001033, 0.000120672, 0.000137126, 0.000152589, 0.000167346, 0.000181501, 0.000195192, 0.000208527, 0.000221432, 0.000234046, 0.00024645, 0.000258652, 0.000270653, 0.000282492, 0.000294147, 0.000305682, 0.000317226, 0.000328855, 0.000340657, 0.000352583], False, 3, [1, 1, 1, 1, 1, 1, 1, 1, 1, 1, 1, 1, 1, 1, 1, 1, 1, 1, 1, 1, 1, 1, 1, 1, 1, 1, 1], False), False)  # 19
sketch4.addGeometry(Part.BSplineCurve([V(-0.005909, -0.232521, 0), V(-0.001933, -0.232451, 0), V(0.005975, -0.232313, 0), V(0.017667, -0.230981, 0), V(0.029088, -0.228771, 0), V(0.04019, -0.225639, 0), V(0.051065, -0.221754, 0), V(0.061628, -0.216884, 0), V(0.071943, -0.211216, 0), V(0.081847, -0.204555, 0), V(0.09145, -0.197129, 0), V(0.100514, -0.188735, 0), V(0.10904, -0.179456, 0), V(0.117137, -0.169393, 0), V(0.124573, -0.158352, 0), V(0.131655, -0.146526, 0), V(0.137994, -0.133707, 0), V(0.144099, -0.12011, 0), V(0.149369, -0.105358, 0), V(0.154121, -0.089535, 0), V(0.157961, -0.072453, 0), V(0.161159, -0.054202, 0), V(0.163637, -0.034715, 0), V(0.165442, -0.014034, 0), V(0.166395, 0.007855, 0), V(0.166575, 0.02282, 0), V(0.166667, 0.0305, 0)], [4, 1, 1, 1, 1, 1, 1, 1, 1, 1, 1, 1, 1, 1, 1, 1, 1, 1, 1, 1, 1, 1, 1, 1, 4], [0, 0.000011926, 0.000023717, 0.000035247, 0.000046791, 0.000058292, 0.000069855, 0.000081646, 0.000093563, 0.000105625, 0.000118029, 0.000130574, 0.000143401, 0.000156736, 0.000170478, 0.000184722, 0.000199611, 0.000215168, 0.000231679, 0.000249148, 0.000267657, 0.000287249, 0.00030806, 0.000329918, 0.000352958], False, 3, [1, 1, 1, 1, 1, 1, 1, 1, 1, 1, 1, 1, 1, 1, 1, 1, 1, 1, 1, 1, 1, 1, 1, 1, 1, 1, 1], False), False)  # 20
sketch4.addGeometry(Part.BSplineCurve([V(-0.004407, -0.181239, 0), V(-0.009937, -0.180949, 0), V(-0.021007, -0.180368, 0), V(-0.037357, -0.176269, 0), V(-0.053029, -0.169124, 0), V(-0.065492, -0.161274, 0), V(-0.075044, -0.153797, 0), V(-0.08177, -0.147313, 0), V(-0.088077, -0.140221, 0), V(-0.093887, -0.132449, 0), V(-0.099328, -0.124097, 0), V(-0.104325, -0.115098, 0), V(-0.108828, -0.105408, 0), V(-0.112983, -0.095034, 0), V(-0.116636, -0.083666, 0), V(-0.119649, -0.071127, 0), V(-0.122433, -0.057347, 0), V(-0.124404, -0.042244, 0), V(-0.126156, -0.025918, 0), V(-0.127282, -0.008307, 0), V(-0.128158, 0.010559, 0), V(-0.128189, 0.023588, 0), V(-0.128205, 0.0303, 0)], [4, 1, 1, 1, 1, 1, 1, 1, 1, 1, 1, 1, 1, 1, 1, 1, 1, 1, 1, 1, 4], [0, 0.000016586, 0.000033202, 0.000050195, 0.000068064, 0.000077262, 0.000086542, 0.000096049, 0.000105705, 0.000115623, 0.000125935, 0.000136554, 0.000147658, 0.000159441, 0.000172341, 0.000186327, 0.000201596, 0.000218011, 0.00023558, 0.000254527, 0.000274661], False, 3, [1, 1, 1, 1, 1, 1, 1, 1, 1, 1, 1, 1, 1, 1, 1, 1, 1, 1, 1, 1, 1, 1, 1], False), False)  # 21
sketch4.addGeometry(Part.BSplineCurve([V(0.121795, 0.0303, 0), V(0.121716, 0.02429, 0), V(0.121563, 0.012534, 0), V(0.120975, -0.004683, 0), V(0.119457, -0.021036, 0), V(0.117772, -0.036594, 0), V(0.115286, -0.051273, 0), V(0.112607, -0.065194, 0), V(0.109006, -0.078186, 0), V(0.105161, -0.090452, 0), V(0.100759, -0.101852, 0), V(0.095914, -0.11244, 0), V(0.09074, -0.122266, 0), V(0.085119, -0.131304, 0), V(0.07912, -0.139595, 0), V(0.072583, -0.146971, 0), V(0.065768, -0.153662, 0), V(0.056223, -0.161299, 0), V(0.043727, -0.169087, 0), V(0.028177, -0.176253, 0), V(0.011996, -0.180369, 0), V(0.001057, -0.180949, 0), V(-0.004407, -0.181239, 0)], [4, 1, 1, 1, 1, 1, 1, 1, 1, 1, 1, 1, 1, 1, 1, 1, 1, 1, 1, 1, 4], [0, 0.000018031, 0.000035273, 0.000051659, 0.000067289, 0.000082207, 0.000096311, 0.000109795, 0.000122624, 0.000134863, 0.000146427, 0.000157539, 0.000168156, 0.000178333, 0.000188198, 0.000197689, 0.00020695, 0.000224818, 0.00024172, 0.000258142, 0.000274528], False, 3, [1, 1, 1, 1, 1, 1, 1, 1, 1, 1, 1, 1, 1, 1, 1, 1, 1, 1, 1, 1, 1, 1, 1], False), False)  # 22
sketch4.addGeometry(Part.BSplineCurve([V(0.102865, 0.156001, 0), V(0.104372, 0.151539, 0), V(0.107433, 0.142481, 0), V(0.111377, 0.128429, 0), V(0.114484, 0.113686, 0), V(0.117278, 0.098339, 0), V(0.119186, 0.082276, 0), V(0.120721, 0.065547, 0), V(0.121626, 0.048138, 0), V(0.121738, 0.03631, 0), V(0.121795, 0.0303, 0)], [4, 1, 1, 1, 1, 1, 1, 1, 4], [0, 0.000014127, 0.000028683, 0.000043751, 0.000059313, 0.000075463, 0.000092257, 0.000109708, 0.00012774], False, 3, [1, 1, 1, 1, 1, 1, 1, 1, 1, 1, 1], False), False)  # 23
sketch4.addGeometry(Part.BSplineCurve([V(-0.004407, 0.241838, 0), V(0.00113, 0.24161, 0), V(0.012192, 0.241154, 0), V(0.028354, 0.236754, 0), V(0.044044, 0.230115, 0), V(0.05634, 0.222266, 0), V(0.065695, 0.21479, 0), V(0.072397, 0.208417, 0), V(0.078549, 0.20128, 0), V(0.084383, 0.19358, 0), V(0.089735, 0.18517, 0), V(0.094601, 0.17609, 0), V(0.099041, 0.166314, 0), V(0.101571, 0.15949, 0), V(0.102865, 0.156001, 0)], [4, 1, 1, 1, 1, 1, 1, 1, 1, 1, 1, 1, 4], [0, 0.000016578, 0.000033121, 0.000049903, 0.000067548, 0.000076668, 0.000085806, 0.000095248, 0.000104903, 0.000114767, 0.000125119, 0.000135787, 0.000146948], False, 3, [1, 1, 1, 1, 1, 1, 1, 1, 1, 1, 1, 1, 1, 1, 1], False), False)  # 24
sketch4.addGeometry(Part.BSplineCurve([V(-0.128205, 0.0303, 0), V(-0.128188, 0.036978, 0), V(-0.128155, 0.049939, 0), V(-0.12729, 0.068774, 0), V(-0.126111, 0.086341, 0), V(-0.124591, 0.102663, 0), V(-0.122333, 0.117685, 0), V(-0.119804, 0.131509, 0), V(-0.116726, 0.144063, 0), V(-0.113083, 0.155432, 0), V(-0.108935, 0.165811, 0), V(-0.104406, 0.175468, 0), V(-0.09954, 0.184518, 0), V(-0.094094, 0.19288, 0), V(-0.088163, 0.200581, 0), V(-0.081882, 0.207757, 0), V(-0.075014, 0.214157, 0), V(-0.065514, 0.221832, 0), V(-0.052971, 0.229764, 0), V(-0.037168, 0.23667, 0), V(-0.02093, 0.241011, 0), V(-0.009908, 0.241562, 0), V(-0.004407, 0.241838, 0)], [4, 1, 1, 1, 1, 1, 1, 1, 1, 1, 1, 1, 1, 1, 1, 1, 1, 1, 1, 1, 4], [0, 0.000020033, 0.00003888, 0.000056549, 0.000072854, 0.000088039, 0.000102104, 0.000115004, 0.000126787, 0.000137891, 0.00014851, 0.000158774, 0.000168692, 0.000178408, 0.000187915, 0.000197268, 0.000206529, 0.000224535, 0.00024158, 0.000258123, 0.000274609], False, 3, [1, 1, 1, 1, 1, 1, 1, 1, 1, 1, 1, 1, 1, 1, 1, 1, 1, 1, 1, 1, 1, 1, 1], False), False)  # 25
add_polygon(sketch4, [(-0.358974, -0.2197), (-0.451422, -0.2197), (-0.480769, -0.168418), (-0.403846, -0.168418), (-0.403846, 0.2803), (-0.358974, 0.2803)])  # lines 26-31
sketch4.addConstraint([
    Sketcher.Constraint("Block", 1),
    Sketcher.Constraint("Block", 2),
    Sketcher.Constraint("Block", 3),
    Sketcher.Constraint("Block", 5),
    Sketcher.Constraint("Block", 6),
    Sketcher.Constraint("Block", 7),
    Sketcher.Constraint("Block", 8),
    Sketcher.Constraint("Block", 10),
    Sketcher.Constraint("Block", 11),
    Sketcher.Constraint("Block", 12),
    Sketcher.Constraint("Block", 13),
    Sketcher.Constraint("Block", 14),
    Sketcher.Constraint("Block", 15),
    Sketcher.Constraint("Block", 16),
    Sketcher.Constraint("Block", 17),
    Sketcher.Constraint("Block", 18),
    Sketcher.Constraint("Block", 19),
    Sketcher.Constraint("Block", 20),
    Sketcher.Constraint("Block", 21),
    Sketcher.Constraint("Block", 22),
    Sketcher.Constraint("Block", 23),
    Sketcher.Constraint("Block", 24),
    Sketcher.Constraint("Block", 25),
    Sketcher.Constraint("Coincident", 0, 2, 1, 2),
    Sketcher.Constraint("Coincident", 3, 1, 4, 1),
    Sketcher.Constraint("Coincident", 4, 2, 5, 2),
    Sketcher.Constraint("Coincident", 8, 1, 9, 1),
    Sketcher.Constraint("Coincident", 9, 2, 10, 2),
    Sketcher.Constraint("Coincident", 16, 1, 0, 1),
    Sketcher.Constraint("Horizontal", 26),
    Sketcher.Constraint("Horizontal", 28),
    Sketcher.Constraint("Vertical", 29),
    Sketcher.Constraint("Horizontal", 30),
    Sketcher.Constraint("Vertical", 31),
    Sketcher.Constraint("Equal", 9, 30),
    Sketcher.Constraint("DistanceY", 31, 2, 31, 1, Q("0.5 mm")),
    Sketcher.Constraint("DistanceY", 26, 2, 4, 2, Q("0.25 mm")),
    Sketcher.Constraint("DistanceX", 26, 2, 26, 1, Q("0.092448 mm")),
    Sketcher.Constraint("DistanceX", 28, 1, 28, 2, Q("0.076923 mm")),
    Sketcher.Constraint("DistanceY", 29, 1, 29, 2, Q("0.448718 mm")),
    Sketcher.Constraint("DistanceX", 27, 2, -1, 1, Q("0.480769 mm")),
])
pad3 = doc.addObject("PartDesign::Pad", "Pad002")
body.addObject(pad3)
pad3.Profile = sketch4
pad3.Length = 0.04
pad3.Reversed = True

doc.recompute()
